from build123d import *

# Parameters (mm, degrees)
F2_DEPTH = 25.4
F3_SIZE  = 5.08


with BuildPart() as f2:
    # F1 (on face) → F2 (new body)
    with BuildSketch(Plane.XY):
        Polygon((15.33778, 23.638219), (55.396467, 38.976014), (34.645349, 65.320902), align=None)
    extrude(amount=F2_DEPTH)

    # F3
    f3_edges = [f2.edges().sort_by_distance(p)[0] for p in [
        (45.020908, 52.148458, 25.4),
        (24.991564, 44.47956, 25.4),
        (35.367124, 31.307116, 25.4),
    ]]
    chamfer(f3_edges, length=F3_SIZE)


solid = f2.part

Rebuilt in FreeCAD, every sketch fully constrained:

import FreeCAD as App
import Part
import Sketcher
Q = App.Units.Quantity


def edges_at(feature, points):
    """Names of the edges that pass closest to the given points."""
    edges = feature.Shape.Edges
    near = lambda p: min(range(len(edges)), key=lambda i: edges[i].distToShape(Part.Vertex(*p))[0])
    return sorted({f"Edge{near(p) + 1}" for p in points})


def add_polygon(sketch, points):
    """Adds a closed chain of lines whose ends are joined by coincident constraints."""
    first, n = sketch.GeometryCount, len(points)
    for a, b in zip(points, points[1:] + points[:1]):
        sketch.addGeometry(Part.LineSegment(App.Vector(*a, 0), App.Vector(*b, 0)), False)
    for i in range(n):
        sketch.addConstraint(Sketcher.Constraint("Coincident", first + i, 2, first + (i + 1) % n, 1))

doc = App.newDocument("Part")
body = doc.addObject("PartDesign::Body", "Body")

sketch1 = doc.addObject("Sketcher::SketchObject", "Sketch")
body.addObject(sketch1)
sketch1.AttachmentSupport = (doc.XY_Plane, [""])
sketch1.MapMode = "FlatFace"
add_polygon(sketch1, [(15, 24), (55, 39), (35, 65)])
sketch1.addConstraint(Sketcher.Constraint("Distance", 1, 33.535981))
sketch1.addConstraint(Sketcher.Constraint("Distance", 2, 45.937221))
sketch1.addConstraint(Sketcher.Constraint("DistanceX", -1, 1, 1, 2, 34.645349))
sketch1.addConstraint(Sketcher.Constraint("DistanceX", -1, 1, 2, 2, 15.33778))
sketch1.addConstraint(Sketcher.Constraint("DistanceY", -1, 1, 2, 2, 23.638219))
sketch1.addConstraint(Sketcher.Constraint("DistanceY", 0, 2, 1, 2, 26.344888))
pad1 = doc.addObject("PartDesign::Pad", "Pad")
body.addObject(pad1)
pad1.Profile = sketch1
pad1.Length = Q("1 in")
doc.recompute()

chamfer = doc.addObject("PartDesign::Chamfer", "Chamfer")
body.addObject(chamfer)
chamfer.Base = (pad1, edges_at(pad1, [(45.021, 52.148, 25.4), (24.992, 44.48, 25.4), (35.367, 31.307, 25.4)]))
chamfer.Size = Q("0.2 in")

doc.recompute()
